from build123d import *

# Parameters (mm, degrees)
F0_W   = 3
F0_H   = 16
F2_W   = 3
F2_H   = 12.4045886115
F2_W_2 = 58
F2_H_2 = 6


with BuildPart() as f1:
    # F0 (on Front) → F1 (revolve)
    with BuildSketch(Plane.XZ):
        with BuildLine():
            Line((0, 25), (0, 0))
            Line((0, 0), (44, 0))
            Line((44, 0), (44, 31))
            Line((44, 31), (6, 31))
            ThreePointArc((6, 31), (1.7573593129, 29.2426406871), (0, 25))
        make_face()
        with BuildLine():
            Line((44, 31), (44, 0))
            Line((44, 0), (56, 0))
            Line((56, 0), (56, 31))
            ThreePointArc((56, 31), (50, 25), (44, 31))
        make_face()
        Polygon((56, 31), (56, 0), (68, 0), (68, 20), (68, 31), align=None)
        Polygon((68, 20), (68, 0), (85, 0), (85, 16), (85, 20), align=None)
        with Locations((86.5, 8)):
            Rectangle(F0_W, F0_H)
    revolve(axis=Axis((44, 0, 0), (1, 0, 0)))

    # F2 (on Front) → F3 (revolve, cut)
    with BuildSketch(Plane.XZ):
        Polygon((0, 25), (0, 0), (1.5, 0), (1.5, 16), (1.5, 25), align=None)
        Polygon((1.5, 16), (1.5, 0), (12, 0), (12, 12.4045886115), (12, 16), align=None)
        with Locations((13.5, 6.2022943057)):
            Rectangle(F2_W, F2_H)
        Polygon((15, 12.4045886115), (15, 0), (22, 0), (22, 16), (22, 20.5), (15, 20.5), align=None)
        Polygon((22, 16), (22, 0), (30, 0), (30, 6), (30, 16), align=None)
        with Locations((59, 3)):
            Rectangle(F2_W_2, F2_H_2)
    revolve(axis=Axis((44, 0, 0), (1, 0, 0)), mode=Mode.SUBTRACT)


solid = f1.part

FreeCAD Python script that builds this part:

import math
import FreeCAD as App
import Part
import Sketcher

V = App.Vector
Q = App.Units.Quantity


def add_polygon(sketch, points):
    """Adds a closed chain of lines whose ends are joined by coincident constraints."""
    first, n = sketch.GeometryCount, len(points)
    for a, b in zip(points, points[1:] + points[:1]):
        sketch.addGeometry(Part.LineSegment(App.Vector(*a, 0), App.Vector(*b, 0)), False)
    for i in range(n):
        sketch.addConstraint(Sketcher.Constraint("Coincident", first + i, 2, first + (i + 1) % n, 1))

doc = App.newDocument("Part")
body = doc.addObject("PartDesign::Body", "Body")

# Sketch on XZ plane
sketch1 = body.newObject("Sketcher::SketchObject", "Sketch")
sketch1.AttachmentSupport = (doc.getObject("XZ_Plane"), [""])
sketch1.MapMode = "FlatFace"
sketch1.addGeometry(Part.LineSegment(V(0, 25, 0), V(0, 0, 0)), False)
sketch1.addGeometry(Part.LineSegment(V(0, 0, 0), V(88, 0, 0)), False)
sketch1.addGeometry(Part.LineSegment(V(88, 0, 0), V(88, 16, 0)), False)
sketch1.addGeometry(Part.LineSegment(V(88, 16, 0), V(85, 16, 0)), False)
sketch1.addGeometry(Part.LineSegment(V(85, 16, 0), V(85, 20, 0)), False)
sketch1.addGeometry(Part.LineSegment(V(85, 20, 0), V(68, 20, 0)), False)
sketch1.addGeometry(Part.LineSegment(V(68, 20, 0), V(68, 31, 0)), False)
sketch1.addGeometry(Part.LineSegment(V(68, 31, 0), V(56, 31, 0)), False)
sketch1.addGeometry(Part.ArcOfCircle(Part.Circle(V(50, 31, 0), V(0, 0, 1), 6), math.radians(180), math.radians(360)), False)
sketch1.addGeometry(Part.LineSegment(V(44, 31, 0), V(6, 31, 0)), False)
sketch1.addGeometry(Part.ArcOfCircle(Part.Circle(V(6, 25, 0), V(0, 0, 1), 6), math.radians(90), math.radians(180)), False)
sketch1.addConstraint(Sketcher.Constraint("Coincident", 0, 2, 1, 1))
sketch1.addConstraint(Sketcher.Constraint("Coincident", 1, 2, 2, 1))
sketch1.addConstraint(Sketcher.Constraint("Coincident", 2, 2, 3, 1))
sketch1.addConstraint(Sketcher.Constraint("Coincident", 3, 2, 4, 1))
sketch1.addConstraint(Sketcher.Constraint("Coincident", 4, 2, 5, 1))
sketch1.addConstraint(Sketcher.Constraint("Coincident", 5, 2, 6, 1))
sketch1.addConstraint(Sketcher.Constraint("Coincident", 6, 2, 7, 1))
sketch1.addConstraint(Sketcher.Constraint("Coincident", 7, 2, 8, 2))
sketch1.addConstraint(Sketcher.Constraint("Coincident", 8, 1, 9, 1))
sketch1.addConstraint(Sketcher.Constraint("Tangent", 9, 2, 10, 1))
sketch1.addConstraint(Sketcher.Constraint("Tangent", 10, 2, 0, 1))
sketch1.addConstraint(Sketcher.Constraint("Vertical", 0))
sketch1.addConstraint(Sketcher.Constraint("Horizontal", 1))
sketch1.addConstraint(Sketcher.Constraint("Vertical", 2))
sketch1.addConstraint(Sketcher.Constraint("Horizontal", 3))
sketch1.addConstraint(Sketcher.Constraint("Vertical", 4))
sketch1.addConstraint(Sketcher.Constraint("Horizontal", 5))
sketch1.addConstraint(Sketcher.Constraint("Vertical", 6))
sketch1.addConstraint(Sketcher.Constraint("Horizontal", 7))
sketch1.addConstraint(Sketcher.Constraint("Horizontal", 9))
sketch1.addConstraint(Sketcher.Constraint("Coincident", 0, 2, -1, 1))
sketch1.addConstraint(Sketcher.Constraint("Equal", 8, 10))
sketch1.addConstraint(Sketcher.Constraint("Horizontal", 8, 3, 6, 2))
sketch1.addConstraint(Sketcher.Constraint("Horizontal", 7, 2, 8, 1))
sketch1.addConstraint(Sketcher.Constraint("Radius", 8, Q("6 mm")))
sketch1.addConstraint(Sketcher.Constraint("DistanceX", 1, 1, 1, 2, Q("88 mm")))
sketch1.addConstraint(Sketcher.Constraint("DistanceX", 3, 2, 3, 1, Q("3 mm")))
sketch1.addConstraint(Sketcher.Constraint("DistanceX", 5, 2, 5, 1, Q("17 mm")))
sketch1.addConstraint(Sketcher.Constraint("DistanceX", 7, 2, 7, 1, Q("12 mm")))
sketch1.addConstraint(Sketcher.Constraint("DistanceY", 0, 2, 0, 1, Q("25 mm")))
sketch1.addConstraint(Sketcher.Constraint("DistanceY", 2, 1, 2, 2, Q("16 mm")))
sketch1.addConstraint(Sketcher.Constraint("DistanceY", 4, 1, 4, 2, Q("4 mm")))
revolution = body.newObject("PartDesign::Revolution", "Revolution")
revolution.Profile = sketch1
revolution.ReferenceAxis = (sketch1, ["H_Axis"])
revolution.Angle = 360

# Sketch on XZ plane
sketch2 = body.newObject("Sketcher::SketchObject", "Sketch001")
sketch2.AttachmentSupport = (doc.getObject("XZ_Plane"), [""])
sketch2.MapMode = "FlatFace"
add_polygon(sketch2, [(0, 25), (0, 0), (12, 0), (15, 0), (30, 0), (88, 0), (88, 6), (30, 6), (30, 16), (22, 16), (22, 20.5), (15, 20.5), (15, 12.4), (12, 12.4), (12, 16), (1.5, 16), (1.5, 25)])  # lines 0-16
sketch2.addConstraint(Sketcher.Constraint("Vertical", 0))
sketch2.addConstraint(Sketcher.Constraint("Horizontal", 1))
sketch2.addConstraint(Sketcher.Constraint("Horizontal", 2))
sketch2.addConstraint(Sketcher.Constraint("Horizontal", 3))
sketch2.addConstraint(Sketcher.Constraint("Horizontal", 4))
sketch2.addConstraint(Sketcher.Constraint("Vertical", 5))
sketch2.addConstraint(Sketcher.Constraint("Horizontal", 6))
sketch2.addConstraint(Sketcher.Constraint("Vertical", 7))
sketch2.addConstraint(Sketcher.Constraint("Horizontal", 8))
sketch2.addConstraint(Sketcher.Constraint("Vertical", 9))
sketch2.addConstraint(Sketcher.Constraint("Horizontal", 10))
sketch2.addConstraint(Sketcher.Constraint("Vertical", 11))
sketch2.addConstraint(Sketcher.Constraint("Horizontal", 12))
sketch2.addConstraint(Sketcher.Constraint("Vertical", 13))
sketch2.addConstraint(Sketcher.Constraint("Horizontal", 14))
sketch2.addConstraint(Sketcher.Constraint("Vertical", 15))
sketch2.addConstraint(Sketcher.Constraint("Horizontal", 16))
sketch2.addConstraint(Sketcher.Constraint("Coincident", 0, 2, -1, 1))
sketch2.addConstraint(Sketcher.Constraint("Horizontal", 8, 2, 13, 2))
sketch2.addConstraint(Sketcher.Constraint("Vertical", 3, 2, 6, 2))
sketch2.addConstraint(Sketcher.Constraint("Vertical", 2, 2, 10, 2))
sketch2.addConstraint(Sketcher.Constraint("Vertical", 1, 2, 12, 2))
sketch2.addConstraint(Sketcher.Constraint("DistanceX", 1, 1, 1, 2, Q("12 mm")))
sketch2.addConstraint(Sketcher.Constraint("DistanceX", 2, 1, 2, 2, Q("3 mm")))
sketch2.addConstraint(Sketcher.Constraint("DistanceX", 3, 1, 3, 2, Q("15 mm")))
sketch2.addConstraint(Sketcher.Constraint("DistanceX", 4, 1, 4, 2, Q("58 mm")))
sketch2.addConstraint(Sketcher.Constraint("DistanceX", 8, 2, 8, 1, Q("8 mm")))
sketch2.addConstraint(Sketcher.Constraint("DistanceY", 0, 2, 0, 1, Q("25 mm")))
sketch2.addConstraint(Sketcher.Constraint("DistanceY", 5, 1, 5, 2, Q("6 mm")))
sketch2.addConstraint(Sketcher.Constraint("DistanceY", 7, 1, 7, 2, Q("10 mm")))
sketch2.addConstraint(Sketcher.Constraint("DistanceX", 14, 2, 14, 1, Q("10.5 mm")))
sketch2.addConstraint(Sketcher.Constraint("DistanceY", 9, 1, 9, 2, Q("4.5 mm")))
sketch2.addConstraint(Sketcher.Constraint("DistanceY", 11, 2, 11, 1, Q("8.095411 mm")))
groove = body.newObject("PartDesign::Groove", "Groove")
groove.Profile = sketch2
groove.ReferenceAxis = (sketch2, ["H_Axis"])
groove.Angle = 360

doc.recompute()
